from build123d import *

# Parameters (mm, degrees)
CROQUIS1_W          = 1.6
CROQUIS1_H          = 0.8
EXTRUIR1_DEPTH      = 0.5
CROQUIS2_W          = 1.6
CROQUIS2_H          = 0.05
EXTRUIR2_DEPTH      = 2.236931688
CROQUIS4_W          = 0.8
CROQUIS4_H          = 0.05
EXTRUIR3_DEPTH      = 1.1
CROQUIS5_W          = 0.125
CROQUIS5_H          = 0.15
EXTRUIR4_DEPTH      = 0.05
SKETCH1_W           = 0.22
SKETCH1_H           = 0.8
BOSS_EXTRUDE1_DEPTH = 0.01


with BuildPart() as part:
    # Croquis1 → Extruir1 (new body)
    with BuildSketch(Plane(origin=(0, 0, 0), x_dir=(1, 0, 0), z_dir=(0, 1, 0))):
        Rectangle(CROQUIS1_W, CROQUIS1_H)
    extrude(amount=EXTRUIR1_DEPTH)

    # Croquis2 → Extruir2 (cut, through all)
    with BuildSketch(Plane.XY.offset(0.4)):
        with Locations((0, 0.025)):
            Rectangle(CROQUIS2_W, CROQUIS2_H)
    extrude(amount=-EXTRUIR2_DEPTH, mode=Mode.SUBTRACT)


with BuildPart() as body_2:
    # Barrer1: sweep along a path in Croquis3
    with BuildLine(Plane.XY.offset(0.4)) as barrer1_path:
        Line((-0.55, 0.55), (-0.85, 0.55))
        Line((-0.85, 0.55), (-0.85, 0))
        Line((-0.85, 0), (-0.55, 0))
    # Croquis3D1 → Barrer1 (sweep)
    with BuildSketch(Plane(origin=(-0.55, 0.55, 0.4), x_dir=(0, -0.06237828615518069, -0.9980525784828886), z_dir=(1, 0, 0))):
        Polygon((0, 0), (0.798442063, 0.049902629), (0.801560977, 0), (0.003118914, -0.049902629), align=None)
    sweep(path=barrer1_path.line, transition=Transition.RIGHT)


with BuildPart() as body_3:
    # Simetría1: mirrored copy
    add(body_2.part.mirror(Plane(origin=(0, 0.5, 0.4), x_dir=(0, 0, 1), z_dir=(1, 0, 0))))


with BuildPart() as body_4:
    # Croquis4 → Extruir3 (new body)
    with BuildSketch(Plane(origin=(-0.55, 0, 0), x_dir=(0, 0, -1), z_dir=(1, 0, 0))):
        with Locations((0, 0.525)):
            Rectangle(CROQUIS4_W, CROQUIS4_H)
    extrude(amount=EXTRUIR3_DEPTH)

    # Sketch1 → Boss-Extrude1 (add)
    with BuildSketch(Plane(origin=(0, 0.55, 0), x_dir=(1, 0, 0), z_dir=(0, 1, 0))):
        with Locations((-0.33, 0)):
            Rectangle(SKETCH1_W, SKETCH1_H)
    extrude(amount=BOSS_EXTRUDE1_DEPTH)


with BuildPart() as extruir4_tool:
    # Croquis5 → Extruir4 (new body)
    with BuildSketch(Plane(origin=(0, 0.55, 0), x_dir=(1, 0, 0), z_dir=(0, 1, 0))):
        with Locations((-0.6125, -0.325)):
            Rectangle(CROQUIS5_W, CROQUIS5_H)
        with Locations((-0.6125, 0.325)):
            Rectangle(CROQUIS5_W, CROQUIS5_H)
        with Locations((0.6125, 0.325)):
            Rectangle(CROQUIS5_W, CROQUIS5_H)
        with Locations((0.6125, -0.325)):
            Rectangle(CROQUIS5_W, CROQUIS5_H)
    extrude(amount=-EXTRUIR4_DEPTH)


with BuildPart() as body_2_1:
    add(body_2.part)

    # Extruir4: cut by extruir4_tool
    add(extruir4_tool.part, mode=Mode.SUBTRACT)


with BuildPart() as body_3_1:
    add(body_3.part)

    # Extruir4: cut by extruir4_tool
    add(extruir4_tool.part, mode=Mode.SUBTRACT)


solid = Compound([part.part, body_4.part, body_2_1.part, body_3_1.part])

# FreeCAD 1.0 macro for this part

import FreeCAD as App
import Part
import Sketcher

V = App.Vector
Q = App.Units.Quantity

doc = App.newDocument("Part")
body = doc.addObject("PartDesign::Body", "Body")

sketch1 = body.newObject("Sketcher::SketchObject", "Sketch")
sketch1.AttachmentSupport = (doc.getObject("XZ_Plane"), [""])
sketch1.MapMode = "FlatFace"
sketch1.addGeometry([
    Part.LineSegment(V(-0.8, -0.4, 0), V(-0.8, 0.4, 0)),
    Part.LineSegment(V(-0.8, 0.4, 0), V(0.8, 0.4, 0)),
    Part.LineSegment(V(0.8, 0.4, 0), V(0.8, -0.4, 0)),
    Part.LineSegment(V(0.8, -0.4, 0), V(-0.8, -0.4, 0)),
], False)
sketch1.addConstraint([
    Sketcher.Constraint("Coincident", 0, 2, 1, 1),
    Sketcher.Constraint("Coincident", 1, 2, 2, 1),
    Sketcher.Constraint("Coincident", 2, 2, 3, 1),
    Sketcher.Constraint("Coincident", 3, 2, 0, 1),
    Sketcher.Constraint("Vertical", 0),
    Sketcher.Constraint("Horizontal", 1),
    Sketcher.Constraint("Vertical", 2),
    Sketcher.Constraint("Horizontal", 3),
    Sketcher.Constraint("Symmetric", 0, 2, 2, 2, -1, 1),
    Sketcher.Constraint("DistanceX", 1, 1, 1, 2, Q("1.6 mm")),
    Sketcher.Constraint("DistanceY", 0, 1, 0, 2, Q("0.8 mm")),
])
pad1 = body.newObject("PartDesign::Pad", "Pad")
pad1.Profile = sketch1
pad1.Length = 0.5
pad1.Reversed = True

sketch2 = body.newObject("Sketcher::SketchObject", "Sketch001")
sketch2.AttachmentSupport = (doc.getObject("XY_Plane"), [""])
sketch2.MapMode = "FlatFace"
sketch2.AttachmentOffset = App.Placement(V(0, 0, 0.4), App.Rotation())
sketch2.addGeometry([
    Part.LineSegment(V(-0.8, 0.05, 0), V(-0.8, 0, 0)),
    Part.LineSegment(V(-0.8, 0, 0), V(0.8, 0, 0)),
    Part.LineSegment(V(0.8, 0, 0), V(0.8, 0.05, 0)),
    Part.LineSegment(V(0.8, 0.05, 0), V(-0.8, 0.05, 0)),
], False)
sketch2.addConstraint([
    Sketcher.Constraint("Coincident", 0, 2, 1, 1),
    Sketcher.Constraint("Coincident", 1, 2, 2, 1),
    Sketcher.Constraint("Coincident", 2, 2, 3, 1),
    Sketcher.Constraint("Coincident", 3, 2, 0, 1),
    Sketcher.Constraint("Vertical", 0),
    Sketcher.Constraint("Horizontal", 1),
    Sketcher.Constraint("Vertical", 2),
    Sketcher.Constraint("Horizontal", 3),
    Sketcher.Constraint("Symmetric", 0, 2, 1, 2, -1, 1),
    Sketcher.Constraint("DistanceX", 1, 1, 1, 2, Q("1.6 mm")),
    Sketcher.Constraint("DistanceY", 0, 2, 0, 1, Q("0.05 mm")),
])
pocket1 = body.newObject("PartDesign::Pocket", "Pocket")
pocket1.Profile = sketch2
pocket1.Type = "ThroughAll"
body2 = doc.addObject("PartDesign::Body", "Body001")

sketch3 = body2.newObject("Sketcher::SketchObject", "Sketch002")
sketch3.AttachmentSupport = (doc.getObject("YZ_Plane001"), [""])
sketch3.MapMode = "FlatFace"
sketch3.AttachmentOffset = App.Placement(V(0, 0, -0.55), App.Rotation())
sketch3.addGeometry([
    Part.LineSegment(V(0.55, -0.4, 0), V(0.55, 0.4, 0)),
    Part.LineSegment(V(0.55, 0.4, 0), V(0.5, 0.4, 0)),
    Part.LineSegment(V(0.5, 0.4, 0), V(0.5, -0.4, 0)),
    Part.LineSegment(V(0.5, -0.4, 0), V(0.55, -0.4, 0)),
], False)
sketch3.addConstraint([
    Sketcher.Constraint("Coincident", 0, 2, 1, 1),
    Sketcher.Constraint("Coincident", 1, 2, 2, 1),
    Sketcher.Constraint("Coincident", 2, 2, 3, 1),
    Sketcher.Constraint("Coincident", 3, 2, 0, 1),
    Sketcher.Constraint("Vertical", 0),
    Sketcher.Constraint("Horizontal", 1),
    Sketcher.Constraint("Vertical", 2),
    Sketcher.Constraint("Horizontal", 3),
    Sketcher.Constraint("DistanceY", 0, 1, 0, 2, Q("0.8 mm")),
    Sketcher.Constraint("DistanceX", 1, 2, 1, 1, Q("0.05 mm")),
    Sketcher.Constraint("DistanceY", -1, 1, 0, 2, Q("0.4 mm")),
    Sketcher.Constraint("DistanceX", -1, 1, 1, 2, Q("0.5 mm")),
])

sketch4 = body2.newObject("Sketcher::SketchObject", "Sketch003")
sketch4.AttachmentSupport = (doc.getObject("XY_Plane001"), [""])
sketch4.MapMode = "FlatFace"
sketch4.AttachmentOffset = App.Placement(V(0, 0, 0.4), App.Rotation())
sketch4.addGeometry([
    Part.LineSegment(V(-0.55, 0.55, 0), V(-0.85, 0.55, 0)),
    Part.LineSegment(V(-0.85, 0.55, 0), V(-0.85, 0, 0)),
    Part.LineSegment(V(-0.85, 0, 0), V(-0.55, 0, 0)),
], False)
sketch4.addConstraint([
    Sketcher.Constraint("Coincident", 0, 2, 1, 1),
    Sketcher.Constraint("Coincident", 1, 2, 2, 1),
    Sketcher.Constraint("Horizontal", 0),
    Sketcher.Constraint("Vertical", 1),
    Sketcher.Constraint("Horizontal", 2),
    Sketcher.Constraint("PointOnObject", 1, 2, -1),
    Sketcher.Constraint("Vertical", 0, 1, 2, 2),
    Sketcher.Constraint("DistanceX", 0, 2, 0, 1, Q("0.3 mm")),
    Sketcher.Constraint("DistanceY", 1, 2, 1, 1, Q("0.55 mm")),
    Sketcher.Constraint("DistanceX", 0, 1, -1, 1, Q("0.55 mm")),
])
doc.recompute()

additivepipe = body2.newObject("PartDesign::AdditivePipe", "AdditivePipe")
additivepipe.Profile = sketch3
additivepipe.Spine = (sketch4, ["Edge1", "Edge2", "Edge3"])
additivepipe.Transition = "Right corner"
body3 = doc.addObject("PartDesign::Body", "Body002")
doc.recompute()

mirroring = doc.addObject("Part::Mirroring", "Mirroring")
mirroring.Source = body2
mirroring.Base = V(0, 0.5, 0.4)
mirroring.Normal = V(1, 0, 0)
body3.BaseFeature = mirroring
doc.recompute()
body4 = doc.addObject("PartDesign::Body", "Body003")

sketch5 = body4.newObject("Sketcher::SketchObject", "Sketch004")
sketch5.AttachmentSupport = (doc.getObject("YZ_Plane003"), [""])
sketch5.MapMode = "FlatFace"
sketch5.AttachmentOffset = App.Placement(V(0, 0, -0.55), App.Rotation())
sketch5.addGeometry([
    Part.LineSegment(V(0.55, 0.4, 0), V(0.5, 0.4, 0)),
    Part.LineSegment(V(0.5, 0.4, 0), V(0.5, -0.4, 0)),
    Part.LineSegment(V(0.5, -0.4, 0), V(0.55, -0.4, 0)),
    Part.LineSegment(V(0.55, -0.4, 0), V(0.55, 0.4, 0)),
], False)
sketch5.addConstraint([
    Sketcher.Constraint("Coincident", 0, 2, 1, 1),
    Sketcher.Constraint("Coincident", 1, 2, 2, 1),
    Sketcher.Constraint("Coincident", 2, 2, 3, 1),
    Sketcher.Constraint("Coincident", 3, 2, 0, 1),
    Sketcher.Constraint("Horizontal", 0),
    Sketcher.Constraint("Vertical", 1),
    Sketcher.Constraint("Horizontal", 2),
    Sketcher.Constraint("Vertical", 3),
    Sketcher.Constraint("DistanceY", 1, 2, 1, 1, Q("0.8 mm")),
    Sketcher.Constraint("DistanceX", 0, 2, 0, 1, Q("0.05 mm")),
    Sketcher.Constraint("DistanceX", -1, 1, 0, 2, Q("0.5 mm")),
    Sketcher.Constraint("DistanceY", -1, 1, 0, 2, Q("0.4 mm")),
])
pad2 = body4.newObject("PartDesign::Pad", "Pad001")
pad2.Profile = sketch5
pad2.Length = 1.1

sketch6 = body4.newObject("Sketcher::SketchObject", "Sketch005")
sketch6.AttachmentSupport = (doc.getObject("XZ_Plane003"), [""])
sketch6.MapMode = "FlatFace"
sketch6.AttachmentOffset = App.Placement(V(0, 0, -0.55), App.Rotation())
sketch6.addGeometry([
    Part.LineSegment(V(-0.44, -0.4, 0), V(-0.44, 0.4, 0)),
    Part.LineSegment(V(-0.44, 0.4, 0), V(-0.22, 0.4, 0)),
    Part.LineSegment(V(-0.22, 0.4, 0), V(-0.22, -0.4, 0)),
    Part.LineSegment(V(-0.22, -0.4, 0), V(-0.44, -0.4, 0)),
], False)
sketch6.addConstraint([
    Sketcher.Constraint("Coincident", 0, 2, 1, 1),
    Sketcher.Constraint("Coincident", 1, 2, 2, 1),
    Sketcher.Constraint("Coincident", 2, 2, 3, 1),
    Sketcher.Constraint("Coincident", 3, 2, 0, 1),
    Sketcher.Constraint("Vertical", 0),
    Sketcher.Constraint("Horizontal", 1),
    Sketcher.Constraint("Vertical", 2),
    Sketcher.Constraint("Horizontal", 3),
    Sketcher.Constraint("DistanceY", 0, 1, 0, 2, Q("0.8 mm")),
    Sketcher.Constraint("DistanceX", 1, 1, 1, 2, Q("0.22 mm")),
    Sketcher.Constraint("DistanceY", -1, 1, 0, 2, Q("0.4 mm")),
    Sketcher.Constraint("DistanceX", 0, 2, -1, 1, Q("0.44 mm")),
])
pad3 = body4.newObject("PartDesign::Pad", "Pad002")
pad3.Profile = sketch6
pad3.Length = 0.01
pad3.Reversed = True
body5 = doc.addObject("PartDesign::Body", "Body004")
body5.AllowCompound = True

sketch7 = body5.newObject("Sketcher::SketchObject", "Sketch006")
sketch7.AttachmentSupport = (doc.getObject("XZ_Plane004"), [""])
sketch7.MapMode = "FlatFace"
sketch7.AttachmentOffset = App.Placement(V(0, 0, -0.55), App.Rotation())
sketch7.addGeometry([
    Part.LineSegment(V(-0.68, 0.25, 0), V(-0.68, 0.4, 0)),
    Part.LineSegment(V(-0.68, 0.4, 0), V(-0.55, 0.4, 0)),
    Part.LineSegment(V(-0.55, 0.4, 0), V(-0.55, 0.25, 0)),
    Part.LineSegment(V(-0.55, 0.25, 0), V(-0.68, 0.25, 0)),
    Part.LineSegment(V(-0.68, -0.4, 0), V(-0.68, -0.25, 0)),
    Part.LineSegment(V(-0.68, -0.25, 0), V(-0.55, -0.25, 0)),
    Part.LineSegment(V(-0.55, -0.25, 0), V(-0.55, -0.4, 0)),
    Part.LineSegment(V(-0.55, -0.4, 0), V(-0.68, -0.4, 0)),
    Part.LineSegment(V(0.55, -0.4, 0), V(0.55, -0.25, 0)),
    Part.LineSegment(V(0.55, -0.25, 0), V(0.68, -0.25, 0)),
    Part.LineSegment(V(0.68, -0.25, 0), V(0.68, -0.4, 0)),
    Part.LineSegment(V(0.68, -0.4, 0), V(0.55, -0.4, 0)),
    Part.LineSegment(V(0.55, 0.25, 0), V(0.55, 0.4, 0)),
    Part.LineSegment(V(0.55, 0.4, 0), V(0.68, 0.4, 0)),
    Part.LineSegment(V(0.68, 0.4, 0), V(0.68, 0.25, 0)),
    Part.LineSegment(V(0.68, 0.25, 0), V(0.55, 0.25, 0)),
], False)
sketch7.addConstraint([
    Sketcher.Constraint("Coincident", 0, 2, 1, 1),
    Sketcher.Constraint("Coincident", 1, 2, 2, 1),
    Sketcher.Constraint("Coincident", 2, 2, 3, 1),
    Sketcher.Constraint("Coincident", 3, 2, 0, 1),
    Sketcher.Constraint("Coincident", 4, 2, 5, 1),
    Sketcher.Constraint("Coincident", 5, 2, 6, 1),
    Sketcher.Constraint("Coincident", 6, 2, 7, 1),
    Sketcher.Constraint("Coincident", 7, 2, 4, 1),
    Sketcher.Constraint("Coincident", 8, 2, 9, 1),
    Sketcher.Constraint("Coincident", 9, 2, 10, 1),
    Sketcher.Constraint("Coincident", 10, 2, 11, 1),
    Sketcher.Constraint("Coincident", 11, 2, 8, 1),
    Sketcher.Constraint("Coincident", 12, 2, 13, 1),
    Sketcher.Constraint("Coincident", 13, 2, 14, 1),
    Sketcher.Constraint("Coincident", 14, 2, 15, 1),
    Sketcher.Constraint("Coincident", 15, 2, 12, 1),
    Sketcher.Constraint("Vertical", 0),
    Sketcher.Constraint("Horizontal", 1),
    Sketcher.Constraint("Vertical", 2),
    Sketcher.Constraint("Horizontal", 3),
    Sketcher.Constraint("Vertical", 4),
    Sketcher.Constraint("Horizontal", 5),
    Sketcher.Constraint("Vertical", 6),
    Sketcher.Constraint("Horizontal", 7),
    Sketcher.Constraint("Vertical", 8),
    Sketcher.Constraint("Horizontal", 9),
    Sketcher.Constraint("Vertical", 10),
    Sketcher.Constraint("Horizontal", 11),
    Sketcher.Constraint("Vertical", 12),
    Sketcher.Constraint("Horizontal", 13),
    Sketcher.Constraint("Vertical", 14),
    Sketcher.Constraint("Horizontal", 15),
    Sketcher.Constraint("Symmetric", 2, 2, 8, 2, -1, 1),
    Sketcher.Constraint("Symmetric", 0, 2, 10, 2, -1, 1),
    Sketcher.Constraint("Symmetric", 6, 2, 12, 2, -1, 1),
    Sketcher.Constraint("Symmetric", 4, 2, 14, 2, -1, 1),
    Sketcher.Constraint("Symmetric", 5, 2, 8, 2, -2),
    Sketcher.Constraint("Symmetric", 7, 2, 10, 2, -2),
    Sketcher.Constraint("DistanceY", 0, 1, 0, 2, Q("0.15 mm")),
    Sketcher.Constraint("DistanceY", -1, 1, 0, 2, Q("0.4 mm")),
    Sketcher.Constraint("DistanceX", 5, 2, 8, 2, Q("1.1 mm")),
    Sketcher.Constraint("DistanceX", 1, 1, 1, 2, Q("0.125 mm")),
])
pad4 = body5.newObject("PartDesign::Pad", "Pad003")
pad4.Profile = sketch7
pad4.Length = 0.05
doc.recompute()

body6 = doc.addObject("PartDesign::Body", "Body005")
body6.BaseFeature = body5
boolean = body2.newObject("PartDesign::Boolean", "Boolean")
boolean.Type = "Cut"
boolean.addObjects([body6])
doc.recompute()

boolean2 = body3.newObject("PartDesign::Boolean", "Boolean001")
boolean2.Type = "Cut"
boolean2.addObjects([body5])
mirroring.Visibility = False

doc.recompute()
